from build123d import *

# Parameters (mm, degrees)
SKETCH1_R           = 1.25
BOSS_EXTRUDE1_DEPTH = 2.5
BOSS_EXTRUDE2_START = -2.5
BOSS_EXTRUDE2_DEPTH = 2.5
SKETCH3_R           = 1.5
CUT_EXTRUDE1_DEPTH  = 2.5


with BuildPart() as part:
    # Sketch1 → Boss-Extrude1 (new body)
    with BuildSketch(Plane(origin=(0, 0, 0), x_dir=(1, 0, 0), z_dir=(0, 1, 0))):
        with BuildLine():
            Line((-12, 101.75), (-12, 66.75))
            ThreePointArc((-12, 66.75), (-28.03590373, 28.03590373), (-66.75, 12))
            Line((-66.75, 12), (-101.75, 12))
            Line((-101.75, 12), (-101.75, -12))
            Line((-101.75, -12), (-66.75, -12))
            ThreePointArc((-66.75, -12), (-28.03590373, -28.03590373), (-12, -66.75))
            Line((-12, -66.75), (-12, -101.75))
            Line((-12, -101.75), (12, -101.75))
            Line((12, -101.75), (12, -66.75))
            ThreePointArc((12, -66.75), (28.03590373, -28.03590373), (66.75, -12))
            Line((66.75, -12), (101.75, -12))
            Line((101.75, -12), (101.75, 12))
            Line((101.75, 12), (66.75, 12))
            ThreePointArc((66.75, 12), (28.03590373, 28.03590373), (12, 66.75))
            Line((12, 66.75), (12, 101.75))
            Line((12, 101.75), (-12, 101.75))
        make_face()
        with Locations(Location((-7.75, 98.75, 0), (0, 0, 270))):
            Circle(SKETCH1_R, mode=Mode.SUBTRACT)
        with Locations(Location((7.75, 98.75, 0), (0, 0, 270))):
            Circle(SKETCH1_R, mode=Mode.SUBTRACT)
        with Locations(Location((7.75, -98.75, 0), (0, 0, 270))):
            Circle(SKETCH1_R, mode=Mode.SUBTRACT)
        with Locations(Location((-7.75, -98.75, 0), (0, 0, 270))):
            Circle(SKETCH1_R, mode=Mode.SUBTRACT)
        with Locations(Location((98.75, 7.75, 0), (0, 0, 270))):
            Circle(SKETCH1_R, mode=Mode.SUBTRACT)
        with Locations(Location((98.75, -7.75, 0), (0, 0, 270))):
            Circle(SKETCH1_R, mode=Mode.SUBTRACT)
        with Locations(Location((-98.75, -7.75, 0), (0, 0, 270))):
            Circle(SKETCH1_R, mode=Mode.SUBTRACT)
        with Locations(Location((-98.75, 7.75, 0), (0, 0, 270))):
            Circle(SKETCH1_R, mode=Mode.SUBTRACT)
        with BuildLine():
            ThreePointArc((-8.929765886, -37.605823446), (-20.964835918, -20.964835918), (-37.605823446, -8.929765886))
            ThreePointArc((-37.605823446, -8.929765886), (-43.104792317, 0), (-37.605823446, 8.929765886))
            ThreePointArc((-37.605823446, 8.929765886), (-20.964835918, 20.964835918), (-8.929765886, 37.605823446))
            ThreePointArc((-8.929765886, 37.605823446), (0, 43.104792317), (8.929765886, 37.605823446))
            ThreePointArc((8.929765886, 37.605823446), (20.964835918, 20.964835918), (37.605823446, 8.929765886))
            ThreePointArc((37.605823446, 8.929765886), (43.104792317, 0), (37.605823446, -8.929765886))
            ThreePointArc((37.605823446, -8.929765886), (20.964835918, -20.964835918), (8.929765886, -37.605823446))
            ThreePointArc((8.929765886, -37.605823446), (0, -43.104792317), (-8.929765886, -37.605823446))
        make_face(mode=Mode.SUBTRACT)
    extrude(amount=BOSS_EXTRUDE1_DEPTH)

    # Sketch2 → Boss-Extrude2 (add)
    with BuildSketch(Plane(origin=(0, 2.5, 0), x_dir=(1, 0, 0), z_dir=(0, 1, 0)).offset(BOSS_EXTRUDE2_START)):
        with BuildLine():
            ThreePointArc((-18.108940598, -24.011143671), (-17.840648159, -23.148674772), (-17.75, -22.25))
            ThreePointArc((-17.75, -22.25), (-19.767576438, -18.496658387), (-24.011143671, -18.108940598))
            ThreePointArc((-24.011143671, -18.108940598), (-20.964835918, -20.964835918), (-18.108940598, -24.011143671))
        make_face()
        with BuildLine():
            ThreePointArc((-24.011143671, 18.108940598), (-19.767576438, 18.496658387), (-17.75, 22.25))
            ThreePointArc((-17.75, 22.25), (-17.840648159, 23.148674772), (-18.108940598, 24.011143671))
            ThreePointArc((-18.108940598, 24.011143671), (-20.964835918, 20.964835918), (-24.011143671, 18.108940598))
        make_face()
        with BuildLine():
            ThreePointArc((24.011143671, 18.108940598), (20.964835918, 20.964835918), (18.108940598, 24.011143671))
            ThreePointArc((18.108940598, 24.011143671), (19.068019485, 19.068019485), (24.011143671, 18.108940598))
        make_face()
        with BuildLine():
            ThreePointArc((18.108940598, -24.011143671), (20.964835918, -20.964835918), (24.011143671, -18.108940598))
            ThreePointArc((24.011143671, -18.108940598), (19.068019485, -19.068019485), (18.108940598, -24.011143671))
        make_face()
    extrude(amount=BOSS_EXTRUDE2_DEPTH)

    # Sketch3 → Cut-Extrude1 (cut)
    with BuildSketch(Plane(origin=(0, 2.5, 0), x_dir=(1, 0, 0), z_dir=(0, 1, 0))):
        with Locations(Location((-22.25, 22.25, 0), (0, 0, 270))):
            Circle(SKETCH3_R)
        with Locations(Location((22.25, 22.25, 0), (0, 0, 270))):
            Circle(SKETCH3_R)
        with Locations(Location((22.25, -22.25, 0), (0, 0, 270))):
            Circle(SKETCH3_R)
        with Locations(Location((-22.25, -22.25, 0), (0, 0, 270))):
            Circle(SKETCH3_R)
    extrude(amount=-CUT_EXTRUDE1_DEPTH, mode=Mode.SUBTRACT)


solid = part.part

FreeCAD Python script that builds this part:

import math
import FreeCAD as App
import Part
import Sketcher
Q = App.Units.Quantity

doc = App.newDocument("Part")
body = doc.addObject("PartDesign::Body", "Body")

# Sketch on XZ plane
sketch1 = body.newObject("Sketcher::SketchObject", "Sketch")
sketch1.AttachmentSupport = (doc.getObject("XZ_Plane"), [""])
sketch1.MapMode = "FlatFace"
sketch1.addGeometry([
    Part.LineSegment(App.Vector(-12, -101.75, 0), App.Vector(-12, -66.75, 0)),  # 0
    Part.ArcOfCircle(Part.Circle(App.Vector(-66.75, -66.75, 0), App.Vector(0, 0, 1), 54.75), math.radians(0), math.radians(90)),  # 1
    Part.LineSegment(App.Vector(-66.75, -12, 0), App.Vector(-101.75, -12, 0)),  # 2
    Part.LineSegment(App.Vector(-101.75, -12, 0), App.Vector(-101.75, 12, 0)),  # 3
    Part.LineSegment(App.Vector(-101.75, 12, 0), App.Vector(-66.75, 12, 0)),  # 4
    Part.ArcOfCircle(Part.Circle(App.Vector(-66.75, 66.75, 0), App.Vector(0, 0, 1), 54.75), math.radians(-90), math.radians(0)),  # 5
    Part.LineSegment(App.Vector(-12, 66.75, 0), App.Vector(-12, 101.75, 0)),  # 6
    Part.LineSegment(App.Vector(-12, 101.75, 0), App.Vector(12, 101.75, 0)),  # 7
    Part.LineSegment(App.Vector(12, 101.75, 0), App.Vector(12, 66.75, 0)),  # 8
    Part.ArcOfCircle(Part.Circle(App.Vector(66.75, 66.75, 0), App.Vector(0, 0, 1), 54.75), math.radians(180), math.radians(270)),  # 9
    Part.LineSegment(App.Vector(66.75, 12, 0), App.Vector(101.75, 12, 0)),  # 10
    Part.LineSegment(App.Vector(101.75, 12, 0), App.Vector(101.75, -12, 0)),  # 11
    Part.LineSegment(App.Vector(101.75, -12, 0), App.Vector(66.75, -12, 0)),  # 12
    Part.ArcOfCircle(Part.Circle(App.Vector(66.75, -66.75, 0), App.Vector(0, 0, 1), 54.75), math.radians(90), math.radians(180)),  # 13
    Part.LineSegment(App.Vector(12, -66.75, 0), App.Vector(12, -101.75, 0)),  # 14
    Part.LineSegment(App.Vector(12, -101.75, 0), App.Vector(-12, -101.75, 0)),  # 15
    Part.Circle(App.Vector(-7.75, 98.75, 0), App.Vector(0, 0, 1), 1.25),  # 16
    Part.Circle(App.Vector(-98.75, 7.75, 0), App.Vector(0, 0, 1), 1.25),  # 17
    Part.Circle(App.Vector(7.75, 98.75, 0), App.Vector(0, 0, 1), 1.25),  # 18
    Part.Circle(App.Vector(98.75, 7.75, 0), App.Vector(0, 0, 1), 1.25),  # 19
    Part.Circle(App.Vector(-98.75, -7.75, 0), App.Vector(0, 0, 1), 1.25),  # 20
    Part.Circle(App.Vector(-7.75, -98.75, 0), App.Vector(0, 0, 1), 1.25),  # 21
    Part.ArcOfCircle(Part.Circle(App.Vector(0, 33.104792, 0), App.Vector(0, 0, 1), 10), math.radians(26.7503), math.radians(153.2497)),  # 22
    Part.ArcOfCircle(Part.Circle(App.Vector(-66.75, 66.75, 0), App.Vector(0, 0, 1), 64.75), math.radians(-63.2497), math.radians(-26.7503)),  # 23
    Part.ArcOfCircle(Part.Circle(App.Vector(-33.104792, 0, 0), App.Vector(0, 0, 1), 10), math.radians(116.7503), math.radians(243.2497)),  # 24
    Part.ArcOfCircle(Part.Circle(App.Vector(-66.75, -66.75, 0), App.Vector(0, 0, 1), 64.75), math.radians(26.7503), math.radians(63.2497)),  # 25
    Part.ArcOfCircle(Part.Circle(App.Vector(0, -33.104792, 0), App.Vector(0, 0, 1), 10), math.radians(-153.2497), math.radians(-26.7503)),  # 26
    Part.ArcOfCircle(Part.Circle(App.Vector(66.75, -66.75, 0), App.Vector(0, 0, 1), 64.75), math.radians(116.7503), math.radians(153.2497)),  # 27
    Part.ArcOfCircle(Part.Circle(App.Vector(33.104792, 0, 0), App.Vector(0, 0, 1), 10), math.radians(-63.2497), math.radians(63.2497)),  # 28
    Part.ArcOfCircle(Part.Circle(App.Vector(66.75, 66.75, 0), App.Vector(0, 0, 1), 64.75), math.radians(-153.2497), math.radians(-116.7503)),  # 29
    Part.Circle(App.Vector(98.75, -7.75, 0), App.Vector(0, 0, 1), 1.25),  # 30
    Part.Circle(App.Vector(7.75, -98.75, 0), App.Vector(0, 0, 1), 1.25),  # 31
], False)
sketch1.addConstraint([
    Sketcher.Constraint("Tangent", 0, 2, 1, 1),
    Sketcher.Constraint("Tangent", 1, 2, 2, 1),
    Sketcher.Constraint("Coincident", 2, 2, 3, 1),
    Sketcher.Constraint("Coincident", 3, 2, 4, 1),
    Sketcher.Constraint("Tangent", 4, 2, 5, 1),
    Sketcher.Constraint("Tangent", 5, 2, 6, 1),
    Sketcher.Constraint("Coincident", 6, 2, 7, 1),
    Sketcher.Constraint("Coincident", 7, 2, 8, 1),
    Sketcher.Constraint("Tangent", 8, 2, 9, 1),
    Sketcher.Constraint("Tangent", 9, 2, 10, 1),
    Sketcher.Constraint("Coincident", 10, 2, 11, 1),
    Sketcher.Constraint("Coincident", 11, 2, 12, 1),
    Sketcher.Constraint("Tangent", 12, 2, 13, 1),
    Sketcher.Constraint("Tangent", 13, 2, 14, 1),
    Sketcher.Constraint("Coincident", 14, 2, 15, 1),
    Sketcher.Constraint("Coincident", 15, 2, 0, 1),
    Sketcher.Constraint("Tangent", 22, 2, 23, 2),
    Sketcher.Constraint("Tangent", 23, 1, 24, 1),
    Sketcher.Constraint("Tangent", 24, 2, 25, 2),
    Sketcher.Constraint("Tangent", 25, 1, 26, 1),
    Sketcher.Constraint("Tangent", 26, 2, 27, 2),
    Sketcher.Constraint("Tangent", 27, 1, 28, 1),
    Sketcher.Constraint("Tangent", 28, 2, 29, 2),
    Sketcher.Constraint("Tangent", 29, 1, 22, 1),
    Sketcher.Constraint("Vertical", 0),
    Sketcher.Constraint("Horizontal", 2),
    Sketcher.Constraint("Vertical", 3),
    Sketcher.Constraint("Horizontal", 4),
    Sketcher.Constraint("Vertical", 6),
    Sketcher.Constraint("Horizontal", 7),
    Sketcher.Constraint("Vertical", 8),
    Sketcher.Constraint("Horizontal", 10),
    Sketcher.Constraint("Vertical", 11),
    Sketcher.Constraint("Horizontal", 12),
    Sketcher.Constraint("Vertical", 14),
    Sketcher.Constraint("Horizontal", 15),
    Sketcher.Constraint("Coincident", 23, 3, 5, 3),
    Sketcher.Constraint("Coincident", 25, 3, 1, 3),
    Sketcher.Constraint("Coincident", 27, 3, 13, 3),
    Sketcher.Constraint("Coincident", 29, 3, 9, 3),
    Sketcher.Constraint("Equal", 1, 5),
    Sketcher.Constraint("Equal", 5, 9),
    Sketcher.Constraint("Equal", 9, 13),
    Sketcher.Constraint("Equal", 16, 17),
    Sketcher.Constraint("Equal", 17, 18),
    Sketcher.Constraint("Equal", 18, 19),
    Sketcher.Constraint("Equal", 19, 20),
    Sketcher.Constraint("Equal", 20, 21),
    Sketcher.Constraint("Equal", 22, 24),
    Sketcher.Constraint("Equal", 23, 25),
    Sketcher.Constraint("Equal", 24, 26),
    Sketcher.Constraint("Equal", 25, 27),
    Sketcher.Constraint("Equal", 26, 28),
    Sketcher.Constraint("Equal", 27, 29),
    Sketcher.Constraint("Equal", 21, 30),
    Sketcher.Constraint("Equal", 30, 31),
    Sketcher.Constraint("Symmetric", 1, 3, 9, 3, -1, 1),
    Sketcher.Constraint("Symmetric", 5, 3, 13, 3, -1, 1),
    Sketcher.Constraint("Symmetric", 19, 3, 20, 3, -1, 1),
    Sketcher.Constraint("Symmetric", 18, 3, 21, 3, -1, 1),
    Sketcher.Constraint("Symmetric", 17, 3, 30, 3, -1, 1),
    Sketcher.Constraint("Symmetric", 16, 3, 31, 3, -1, 1),
    Sketcher.Constraint("Symmetric", 5, 3, 9, 3, -2),
    Sketcher.Constraint("Symmetric", 16, 3, 18, 3, -2),
    Sketcher.Constraint("Symmetric", 17, 3, 19, 3, -2),
    Sketcher.Constraint("Equal", 4, 10),
    Sketcher.Constraint("Equal", 12, 0),
    Sketcher.Constraint("Equal", 15, 3),
    Sketcher.Constraint("Equal", 0, 6),
    Sketcher.Constraint("Radius", 22, Q("10 mm")),
    Sketcher.Constraint("Diameter", 16, Q("2.5 mm")),
    Sketcher.Constraint("DistanceX", 2, 2, 2, 1, Q("35 mm")),
    Sketcher.Constraint("DistanceX", 7, 1, 7, 2, Q("24 mm")),
    Sketcher.Constraint("Radius", 1, Q("54.75 mm")),
    Sketcher.Constraint("Radius", 23, Q("64.75 mm")),
    Sketcher.Constraint("DistanceX", 5, 3, 16, 3, Q("59 mm")),
    Sketcher.Constraint("DistanceY", 5, 3, 16, 3, Q("32 mm")),
    Sketcher.Constraint("DistanceX", 17, 3, 5, 3, Q("32 mm")),
    Sketcher.Constraint("DistanceY", 17, 3, 5, 3, Q("59 mm")),
])
pad1 = body.newObject("PartDesign::Pad", "Pad")
pad1.Profile = sketch1
pad1.Length = 2.5
pad1.Reversed = True

# Sketch on XZ plane
sketch2 = body.newObject("Sketcher::SketchObject", "Sketch001")
sketch2.AttachmentSupport = (doc.getObject("XZ_Plane"), [""])
sketch2.MapMode = "FlatFace"
sketch2.addGeometry([
    Part.ArcOfCircle(Part.Circle(App.Vector(-22.25, 22.25, 0), App.Vector(0, 0, 1), 4.5), math.radians(0), math.radians(23.039477)),  # 0
    Part.ArcOfCircle(Part.Circle(App.Vector(-22.25, 22.25, 0), App.Vector(0, 0, 1), 4.5), math.radians(-113.039477), math.radians(0)),  # 1
    Part.ArcOfCircle(Part.Circle(App.Vector(-66.75, 66.75, 0), App.Vector(0, 0, 1), 64.75), math.radians(-48.695585), math.radians(-41.304415)),  # 2
    Part.ArcOfCircle(Part.Circle(App.Vector(-22.25, -22.25, 0), App.Vector(0, 0, 1), 4.5), math.radians(0), math.radians(113.039477)),  # 3
    Part.ArcOfCircle(Part.Circle(App.Vector(-22.25, -22.25, 0), App.Vector(0, 0, 1), 4.5), math.radians(-23.039477), math.radians(0)),  # 4
    Part.ArcOfCircle(Part.Circle(App.Vector(-66.75, -66.75, 0), App.Vector(0, 0, 1), 64.75), math.radians(41.304415), math.radians(48.695585)),  # 5
    Part.ArcOfCircle(Part.Circle(App.Vector(66.75, -66.75, 0), App.Vector(0, 0, 1), 64.75), math.radians(131.304415), math.radians(138.695585)),  # 6
    Part.ArcOfCircle(Part.Circle(App.Vector(22.25, -22.25, 0), App.Vector(0, 0, 1), 4.5), math.radians(66.960523), math.radians(203.039477)),  # 7
    Part.ArcOfCircle(Part.Circle(App.Vector(66.75, 66.75, 0), App.Vector(0, 0, 1), 64.75), math.radians(-138.695585), math.radians(-131.304415)),  # 8
    Part.ArcOfCircle(Part.Circle(App.Vector(22.25, 22.25, 0), App.Vector(0, 0, 1), 4.5), math.radians(156.960523), math.radians(293.039477)),  # 9
], False)
sketch2.addConstraint([
    Sketcher.Constraint("Tangent", 0, 1, 1, 2),
    Sketcher.Constraint("Coincident", 1, 1, 2, 1),
    Sketcher.Constraint("Coincident", 2, 2, 0, 2),
    Sketcher.Constraint("Tangent", 3, 1, 4, 2),
    Sketcher.Constraint("Coincident", 4, 1, 5, 1),
    Sketcher.Constraint("Coincident", 5, 2, 3, 2),
    Sketcher.Constraint("Coincident", 6, 1, 7, 1),
    Sketcher.Constraint("Coincident", 7, 2, 6, 2),
    Sketcher.Constraint("Coincident", 8, 1, 9, 1),
    Sketcher.Constraint("Coincident", 9, 2, 8, 2),
    Sketcher.Constraint("Equal", 0, 1),
    Sketcher.Constraint("Equal", 1, 3),
    Sketcher.Constraint("Equal", 3, 4),
    Sketcher.Constraint("Equal", 2, 5),
    Sketcher.Constraint("Equal", 5, 6),
    Sketcher.Constraint("Equal", 4, 7),
    Sketcher.Constraint("Equal", 6, 8),
    Sketcher.Constraint("Equal", 7, 9),
    Sketcher.Constraint("Symmetric", 2, 3, 6, 3, -1, 1),
    Sketcher.Constraint("Symmetric", 0, 3, 7, 3, -1, 1),
    Sketcher.Constraint("Symmetric", 5, 3, 8, 3, -1, 1),
    Sketcher.Constraint("Symmetric", 3, 3, 9, 3, -1, 1),
    Sketcher.Constraint("Symmetric", 5, 3, 6, 3, -2),
    Sketcher.Constraint("Symmetric", 3, 3, 7, 3, -2),
    Sketcher.Constraint("Horizontal", 9, 3, 0, 1),
    Sketcher.Constraint("Horizontal", 7, 3, 3, 1),
    Sketcher.Constraint("Radius", 0, Q("4.5 mm")),
    Sketcher.Constraint("Radius", 2, Q("64.75 mm")),
    Sketcher.Constraint("DistanceY", 3, 3, 2, 3, Q("89 mm")),
    Sketcher.Constraint("DistanceX", 4, 3, 6, 3, Q("89 mm")),
    Sketcher.Constraint("DistanceX", 0, 1, 9, 3, Q("40 mm")),
    Sketcher.Constraint("DistanceY", 1, 3, 2, 3, Q("44.5 mm")),
])
pad2 = body.newObject("PartDesign::Pad", "Pad001")
pad2.Profile = sketch2
pad2.Length = 2.5
pad2.Reversed = True

# Sketch on XZ plane
sketch3 = body.newObject("Sketcher::SketchObject", "Sketch002")
sketch3.AttachmentSupport = (doc.getObject("XZ_Plane"), [""])
sketch3.MapMode = "FlatFace"
sketch3.AttachmentOffset = App.Placement(App.Vector(0, 0, -2.5), App.Rotation())
sketch3.addGeometry([
    Part.Circle(App.Vector(-22.25, -22.25, 0), App.Vector(0, 0, 1), 1.5),
    Part.Circle(App.Vector(22.25, -22.25, 0), App.Vector(0, 0, 1), 1.5),
    Part.Circle(App.Vector(22.25, 22.25, 0), App.Vector(0, 0, 1), 1.5),
    Part.Circle(App.Vector(-22.25, 22.25, 0), App.Vector(0, 0, 1), 1.5),
], False)
sketch3.addConstraint([
    Sketcher.Constraint("Equal", 0, 1),
    Sketcher.Constraint("Equal", 1, 2),
    Sketcher.Constraint("Equal", 2, 3),
    Sketcher.Constraint("Symmetric", 0, 3, 2, 3, -1, 1),
    Sketcher.Constraint("Symmetric", 1, 3, 3, 3, -1, 1),
    Sketcher.Constraint("Symmetric", 0, 3, 1, 3, -2),
    Sketcher.Constraint("Diameter", 0, Q("3 mm")),
    Sketcher.Constraint("DistanceX", 0, 3, 1, 3, Q("44.5 mm")),
    Sketcher.Constraint("DistanceY", 1, 3, 2, 3, Q("44.5 mm")),
])
pocket1 = body.newObject("PartDesign::Pocket", "Pocket")
pocket1.Profile = sketch3
pocket1.Length = 2.5
pocket1.Reversed = True

doc.recompute()
